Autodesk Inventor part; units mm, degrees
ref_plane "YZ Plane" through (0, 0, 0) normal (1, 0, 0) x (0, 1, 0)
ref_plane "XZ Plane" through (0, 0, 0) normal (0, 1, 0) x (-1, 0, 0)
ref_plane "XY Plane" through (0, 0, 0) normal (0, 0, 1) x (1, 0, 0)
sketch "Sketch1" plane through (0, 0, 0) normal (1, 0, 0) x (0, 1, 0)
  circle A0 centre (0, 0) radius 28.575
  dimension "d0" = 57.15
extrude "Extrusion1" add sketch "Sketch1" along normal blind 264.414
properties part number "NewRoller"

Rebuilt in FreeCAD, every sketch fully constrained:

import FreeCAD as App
import Part
import Sketcher

V = App.Vector
Q = App.Units.Quantity

doc = App.newDocument("Part")
params = doc.addObject("Spreadsheet::Sheet", "Params")
for row, (alias, value) in enumerate([
    ("sketch1_diameter", "2.25 in"),
    ("pad1_length", "10.41 in"),
], start=1):
    params.set(f"A{row}", alias)
    params.set(f"B{row}", "=" + value)
    params.setAlias(f"B{row}", alias)

body = doc.addObject("PartDesign::Body", "Body")

sketch1 = doc.addObject("Sketcher::SketchObject", "Sketch")
body.addObject(sketch1)
sketch1.AttachmentSupport = (doc.YZ_Plane, [""])
sketch1.MapMode = "FlatFace"
sketch1.addGeometry(Part.Circle(V(0, 0, 0), V(0, 0, 1), 29), False)
sketch1.addConstraint([
    Sketcher.Constraint("Coincident", 0, 3, -1, 1),
    Sketcher.Constraint("Diameter", 0, Q("2.25 in")),
])
sketch1.setExpression("Constraints[1]", "Params.sketch1_diameter")
pad1 = doc.addObject("PartDesign::Pad", "Pad")
body.addObject(pad1)
pad1.Profile = sketch1
pad1.setExpression("Length", "Params.pad1_length")

doc.recompute()
